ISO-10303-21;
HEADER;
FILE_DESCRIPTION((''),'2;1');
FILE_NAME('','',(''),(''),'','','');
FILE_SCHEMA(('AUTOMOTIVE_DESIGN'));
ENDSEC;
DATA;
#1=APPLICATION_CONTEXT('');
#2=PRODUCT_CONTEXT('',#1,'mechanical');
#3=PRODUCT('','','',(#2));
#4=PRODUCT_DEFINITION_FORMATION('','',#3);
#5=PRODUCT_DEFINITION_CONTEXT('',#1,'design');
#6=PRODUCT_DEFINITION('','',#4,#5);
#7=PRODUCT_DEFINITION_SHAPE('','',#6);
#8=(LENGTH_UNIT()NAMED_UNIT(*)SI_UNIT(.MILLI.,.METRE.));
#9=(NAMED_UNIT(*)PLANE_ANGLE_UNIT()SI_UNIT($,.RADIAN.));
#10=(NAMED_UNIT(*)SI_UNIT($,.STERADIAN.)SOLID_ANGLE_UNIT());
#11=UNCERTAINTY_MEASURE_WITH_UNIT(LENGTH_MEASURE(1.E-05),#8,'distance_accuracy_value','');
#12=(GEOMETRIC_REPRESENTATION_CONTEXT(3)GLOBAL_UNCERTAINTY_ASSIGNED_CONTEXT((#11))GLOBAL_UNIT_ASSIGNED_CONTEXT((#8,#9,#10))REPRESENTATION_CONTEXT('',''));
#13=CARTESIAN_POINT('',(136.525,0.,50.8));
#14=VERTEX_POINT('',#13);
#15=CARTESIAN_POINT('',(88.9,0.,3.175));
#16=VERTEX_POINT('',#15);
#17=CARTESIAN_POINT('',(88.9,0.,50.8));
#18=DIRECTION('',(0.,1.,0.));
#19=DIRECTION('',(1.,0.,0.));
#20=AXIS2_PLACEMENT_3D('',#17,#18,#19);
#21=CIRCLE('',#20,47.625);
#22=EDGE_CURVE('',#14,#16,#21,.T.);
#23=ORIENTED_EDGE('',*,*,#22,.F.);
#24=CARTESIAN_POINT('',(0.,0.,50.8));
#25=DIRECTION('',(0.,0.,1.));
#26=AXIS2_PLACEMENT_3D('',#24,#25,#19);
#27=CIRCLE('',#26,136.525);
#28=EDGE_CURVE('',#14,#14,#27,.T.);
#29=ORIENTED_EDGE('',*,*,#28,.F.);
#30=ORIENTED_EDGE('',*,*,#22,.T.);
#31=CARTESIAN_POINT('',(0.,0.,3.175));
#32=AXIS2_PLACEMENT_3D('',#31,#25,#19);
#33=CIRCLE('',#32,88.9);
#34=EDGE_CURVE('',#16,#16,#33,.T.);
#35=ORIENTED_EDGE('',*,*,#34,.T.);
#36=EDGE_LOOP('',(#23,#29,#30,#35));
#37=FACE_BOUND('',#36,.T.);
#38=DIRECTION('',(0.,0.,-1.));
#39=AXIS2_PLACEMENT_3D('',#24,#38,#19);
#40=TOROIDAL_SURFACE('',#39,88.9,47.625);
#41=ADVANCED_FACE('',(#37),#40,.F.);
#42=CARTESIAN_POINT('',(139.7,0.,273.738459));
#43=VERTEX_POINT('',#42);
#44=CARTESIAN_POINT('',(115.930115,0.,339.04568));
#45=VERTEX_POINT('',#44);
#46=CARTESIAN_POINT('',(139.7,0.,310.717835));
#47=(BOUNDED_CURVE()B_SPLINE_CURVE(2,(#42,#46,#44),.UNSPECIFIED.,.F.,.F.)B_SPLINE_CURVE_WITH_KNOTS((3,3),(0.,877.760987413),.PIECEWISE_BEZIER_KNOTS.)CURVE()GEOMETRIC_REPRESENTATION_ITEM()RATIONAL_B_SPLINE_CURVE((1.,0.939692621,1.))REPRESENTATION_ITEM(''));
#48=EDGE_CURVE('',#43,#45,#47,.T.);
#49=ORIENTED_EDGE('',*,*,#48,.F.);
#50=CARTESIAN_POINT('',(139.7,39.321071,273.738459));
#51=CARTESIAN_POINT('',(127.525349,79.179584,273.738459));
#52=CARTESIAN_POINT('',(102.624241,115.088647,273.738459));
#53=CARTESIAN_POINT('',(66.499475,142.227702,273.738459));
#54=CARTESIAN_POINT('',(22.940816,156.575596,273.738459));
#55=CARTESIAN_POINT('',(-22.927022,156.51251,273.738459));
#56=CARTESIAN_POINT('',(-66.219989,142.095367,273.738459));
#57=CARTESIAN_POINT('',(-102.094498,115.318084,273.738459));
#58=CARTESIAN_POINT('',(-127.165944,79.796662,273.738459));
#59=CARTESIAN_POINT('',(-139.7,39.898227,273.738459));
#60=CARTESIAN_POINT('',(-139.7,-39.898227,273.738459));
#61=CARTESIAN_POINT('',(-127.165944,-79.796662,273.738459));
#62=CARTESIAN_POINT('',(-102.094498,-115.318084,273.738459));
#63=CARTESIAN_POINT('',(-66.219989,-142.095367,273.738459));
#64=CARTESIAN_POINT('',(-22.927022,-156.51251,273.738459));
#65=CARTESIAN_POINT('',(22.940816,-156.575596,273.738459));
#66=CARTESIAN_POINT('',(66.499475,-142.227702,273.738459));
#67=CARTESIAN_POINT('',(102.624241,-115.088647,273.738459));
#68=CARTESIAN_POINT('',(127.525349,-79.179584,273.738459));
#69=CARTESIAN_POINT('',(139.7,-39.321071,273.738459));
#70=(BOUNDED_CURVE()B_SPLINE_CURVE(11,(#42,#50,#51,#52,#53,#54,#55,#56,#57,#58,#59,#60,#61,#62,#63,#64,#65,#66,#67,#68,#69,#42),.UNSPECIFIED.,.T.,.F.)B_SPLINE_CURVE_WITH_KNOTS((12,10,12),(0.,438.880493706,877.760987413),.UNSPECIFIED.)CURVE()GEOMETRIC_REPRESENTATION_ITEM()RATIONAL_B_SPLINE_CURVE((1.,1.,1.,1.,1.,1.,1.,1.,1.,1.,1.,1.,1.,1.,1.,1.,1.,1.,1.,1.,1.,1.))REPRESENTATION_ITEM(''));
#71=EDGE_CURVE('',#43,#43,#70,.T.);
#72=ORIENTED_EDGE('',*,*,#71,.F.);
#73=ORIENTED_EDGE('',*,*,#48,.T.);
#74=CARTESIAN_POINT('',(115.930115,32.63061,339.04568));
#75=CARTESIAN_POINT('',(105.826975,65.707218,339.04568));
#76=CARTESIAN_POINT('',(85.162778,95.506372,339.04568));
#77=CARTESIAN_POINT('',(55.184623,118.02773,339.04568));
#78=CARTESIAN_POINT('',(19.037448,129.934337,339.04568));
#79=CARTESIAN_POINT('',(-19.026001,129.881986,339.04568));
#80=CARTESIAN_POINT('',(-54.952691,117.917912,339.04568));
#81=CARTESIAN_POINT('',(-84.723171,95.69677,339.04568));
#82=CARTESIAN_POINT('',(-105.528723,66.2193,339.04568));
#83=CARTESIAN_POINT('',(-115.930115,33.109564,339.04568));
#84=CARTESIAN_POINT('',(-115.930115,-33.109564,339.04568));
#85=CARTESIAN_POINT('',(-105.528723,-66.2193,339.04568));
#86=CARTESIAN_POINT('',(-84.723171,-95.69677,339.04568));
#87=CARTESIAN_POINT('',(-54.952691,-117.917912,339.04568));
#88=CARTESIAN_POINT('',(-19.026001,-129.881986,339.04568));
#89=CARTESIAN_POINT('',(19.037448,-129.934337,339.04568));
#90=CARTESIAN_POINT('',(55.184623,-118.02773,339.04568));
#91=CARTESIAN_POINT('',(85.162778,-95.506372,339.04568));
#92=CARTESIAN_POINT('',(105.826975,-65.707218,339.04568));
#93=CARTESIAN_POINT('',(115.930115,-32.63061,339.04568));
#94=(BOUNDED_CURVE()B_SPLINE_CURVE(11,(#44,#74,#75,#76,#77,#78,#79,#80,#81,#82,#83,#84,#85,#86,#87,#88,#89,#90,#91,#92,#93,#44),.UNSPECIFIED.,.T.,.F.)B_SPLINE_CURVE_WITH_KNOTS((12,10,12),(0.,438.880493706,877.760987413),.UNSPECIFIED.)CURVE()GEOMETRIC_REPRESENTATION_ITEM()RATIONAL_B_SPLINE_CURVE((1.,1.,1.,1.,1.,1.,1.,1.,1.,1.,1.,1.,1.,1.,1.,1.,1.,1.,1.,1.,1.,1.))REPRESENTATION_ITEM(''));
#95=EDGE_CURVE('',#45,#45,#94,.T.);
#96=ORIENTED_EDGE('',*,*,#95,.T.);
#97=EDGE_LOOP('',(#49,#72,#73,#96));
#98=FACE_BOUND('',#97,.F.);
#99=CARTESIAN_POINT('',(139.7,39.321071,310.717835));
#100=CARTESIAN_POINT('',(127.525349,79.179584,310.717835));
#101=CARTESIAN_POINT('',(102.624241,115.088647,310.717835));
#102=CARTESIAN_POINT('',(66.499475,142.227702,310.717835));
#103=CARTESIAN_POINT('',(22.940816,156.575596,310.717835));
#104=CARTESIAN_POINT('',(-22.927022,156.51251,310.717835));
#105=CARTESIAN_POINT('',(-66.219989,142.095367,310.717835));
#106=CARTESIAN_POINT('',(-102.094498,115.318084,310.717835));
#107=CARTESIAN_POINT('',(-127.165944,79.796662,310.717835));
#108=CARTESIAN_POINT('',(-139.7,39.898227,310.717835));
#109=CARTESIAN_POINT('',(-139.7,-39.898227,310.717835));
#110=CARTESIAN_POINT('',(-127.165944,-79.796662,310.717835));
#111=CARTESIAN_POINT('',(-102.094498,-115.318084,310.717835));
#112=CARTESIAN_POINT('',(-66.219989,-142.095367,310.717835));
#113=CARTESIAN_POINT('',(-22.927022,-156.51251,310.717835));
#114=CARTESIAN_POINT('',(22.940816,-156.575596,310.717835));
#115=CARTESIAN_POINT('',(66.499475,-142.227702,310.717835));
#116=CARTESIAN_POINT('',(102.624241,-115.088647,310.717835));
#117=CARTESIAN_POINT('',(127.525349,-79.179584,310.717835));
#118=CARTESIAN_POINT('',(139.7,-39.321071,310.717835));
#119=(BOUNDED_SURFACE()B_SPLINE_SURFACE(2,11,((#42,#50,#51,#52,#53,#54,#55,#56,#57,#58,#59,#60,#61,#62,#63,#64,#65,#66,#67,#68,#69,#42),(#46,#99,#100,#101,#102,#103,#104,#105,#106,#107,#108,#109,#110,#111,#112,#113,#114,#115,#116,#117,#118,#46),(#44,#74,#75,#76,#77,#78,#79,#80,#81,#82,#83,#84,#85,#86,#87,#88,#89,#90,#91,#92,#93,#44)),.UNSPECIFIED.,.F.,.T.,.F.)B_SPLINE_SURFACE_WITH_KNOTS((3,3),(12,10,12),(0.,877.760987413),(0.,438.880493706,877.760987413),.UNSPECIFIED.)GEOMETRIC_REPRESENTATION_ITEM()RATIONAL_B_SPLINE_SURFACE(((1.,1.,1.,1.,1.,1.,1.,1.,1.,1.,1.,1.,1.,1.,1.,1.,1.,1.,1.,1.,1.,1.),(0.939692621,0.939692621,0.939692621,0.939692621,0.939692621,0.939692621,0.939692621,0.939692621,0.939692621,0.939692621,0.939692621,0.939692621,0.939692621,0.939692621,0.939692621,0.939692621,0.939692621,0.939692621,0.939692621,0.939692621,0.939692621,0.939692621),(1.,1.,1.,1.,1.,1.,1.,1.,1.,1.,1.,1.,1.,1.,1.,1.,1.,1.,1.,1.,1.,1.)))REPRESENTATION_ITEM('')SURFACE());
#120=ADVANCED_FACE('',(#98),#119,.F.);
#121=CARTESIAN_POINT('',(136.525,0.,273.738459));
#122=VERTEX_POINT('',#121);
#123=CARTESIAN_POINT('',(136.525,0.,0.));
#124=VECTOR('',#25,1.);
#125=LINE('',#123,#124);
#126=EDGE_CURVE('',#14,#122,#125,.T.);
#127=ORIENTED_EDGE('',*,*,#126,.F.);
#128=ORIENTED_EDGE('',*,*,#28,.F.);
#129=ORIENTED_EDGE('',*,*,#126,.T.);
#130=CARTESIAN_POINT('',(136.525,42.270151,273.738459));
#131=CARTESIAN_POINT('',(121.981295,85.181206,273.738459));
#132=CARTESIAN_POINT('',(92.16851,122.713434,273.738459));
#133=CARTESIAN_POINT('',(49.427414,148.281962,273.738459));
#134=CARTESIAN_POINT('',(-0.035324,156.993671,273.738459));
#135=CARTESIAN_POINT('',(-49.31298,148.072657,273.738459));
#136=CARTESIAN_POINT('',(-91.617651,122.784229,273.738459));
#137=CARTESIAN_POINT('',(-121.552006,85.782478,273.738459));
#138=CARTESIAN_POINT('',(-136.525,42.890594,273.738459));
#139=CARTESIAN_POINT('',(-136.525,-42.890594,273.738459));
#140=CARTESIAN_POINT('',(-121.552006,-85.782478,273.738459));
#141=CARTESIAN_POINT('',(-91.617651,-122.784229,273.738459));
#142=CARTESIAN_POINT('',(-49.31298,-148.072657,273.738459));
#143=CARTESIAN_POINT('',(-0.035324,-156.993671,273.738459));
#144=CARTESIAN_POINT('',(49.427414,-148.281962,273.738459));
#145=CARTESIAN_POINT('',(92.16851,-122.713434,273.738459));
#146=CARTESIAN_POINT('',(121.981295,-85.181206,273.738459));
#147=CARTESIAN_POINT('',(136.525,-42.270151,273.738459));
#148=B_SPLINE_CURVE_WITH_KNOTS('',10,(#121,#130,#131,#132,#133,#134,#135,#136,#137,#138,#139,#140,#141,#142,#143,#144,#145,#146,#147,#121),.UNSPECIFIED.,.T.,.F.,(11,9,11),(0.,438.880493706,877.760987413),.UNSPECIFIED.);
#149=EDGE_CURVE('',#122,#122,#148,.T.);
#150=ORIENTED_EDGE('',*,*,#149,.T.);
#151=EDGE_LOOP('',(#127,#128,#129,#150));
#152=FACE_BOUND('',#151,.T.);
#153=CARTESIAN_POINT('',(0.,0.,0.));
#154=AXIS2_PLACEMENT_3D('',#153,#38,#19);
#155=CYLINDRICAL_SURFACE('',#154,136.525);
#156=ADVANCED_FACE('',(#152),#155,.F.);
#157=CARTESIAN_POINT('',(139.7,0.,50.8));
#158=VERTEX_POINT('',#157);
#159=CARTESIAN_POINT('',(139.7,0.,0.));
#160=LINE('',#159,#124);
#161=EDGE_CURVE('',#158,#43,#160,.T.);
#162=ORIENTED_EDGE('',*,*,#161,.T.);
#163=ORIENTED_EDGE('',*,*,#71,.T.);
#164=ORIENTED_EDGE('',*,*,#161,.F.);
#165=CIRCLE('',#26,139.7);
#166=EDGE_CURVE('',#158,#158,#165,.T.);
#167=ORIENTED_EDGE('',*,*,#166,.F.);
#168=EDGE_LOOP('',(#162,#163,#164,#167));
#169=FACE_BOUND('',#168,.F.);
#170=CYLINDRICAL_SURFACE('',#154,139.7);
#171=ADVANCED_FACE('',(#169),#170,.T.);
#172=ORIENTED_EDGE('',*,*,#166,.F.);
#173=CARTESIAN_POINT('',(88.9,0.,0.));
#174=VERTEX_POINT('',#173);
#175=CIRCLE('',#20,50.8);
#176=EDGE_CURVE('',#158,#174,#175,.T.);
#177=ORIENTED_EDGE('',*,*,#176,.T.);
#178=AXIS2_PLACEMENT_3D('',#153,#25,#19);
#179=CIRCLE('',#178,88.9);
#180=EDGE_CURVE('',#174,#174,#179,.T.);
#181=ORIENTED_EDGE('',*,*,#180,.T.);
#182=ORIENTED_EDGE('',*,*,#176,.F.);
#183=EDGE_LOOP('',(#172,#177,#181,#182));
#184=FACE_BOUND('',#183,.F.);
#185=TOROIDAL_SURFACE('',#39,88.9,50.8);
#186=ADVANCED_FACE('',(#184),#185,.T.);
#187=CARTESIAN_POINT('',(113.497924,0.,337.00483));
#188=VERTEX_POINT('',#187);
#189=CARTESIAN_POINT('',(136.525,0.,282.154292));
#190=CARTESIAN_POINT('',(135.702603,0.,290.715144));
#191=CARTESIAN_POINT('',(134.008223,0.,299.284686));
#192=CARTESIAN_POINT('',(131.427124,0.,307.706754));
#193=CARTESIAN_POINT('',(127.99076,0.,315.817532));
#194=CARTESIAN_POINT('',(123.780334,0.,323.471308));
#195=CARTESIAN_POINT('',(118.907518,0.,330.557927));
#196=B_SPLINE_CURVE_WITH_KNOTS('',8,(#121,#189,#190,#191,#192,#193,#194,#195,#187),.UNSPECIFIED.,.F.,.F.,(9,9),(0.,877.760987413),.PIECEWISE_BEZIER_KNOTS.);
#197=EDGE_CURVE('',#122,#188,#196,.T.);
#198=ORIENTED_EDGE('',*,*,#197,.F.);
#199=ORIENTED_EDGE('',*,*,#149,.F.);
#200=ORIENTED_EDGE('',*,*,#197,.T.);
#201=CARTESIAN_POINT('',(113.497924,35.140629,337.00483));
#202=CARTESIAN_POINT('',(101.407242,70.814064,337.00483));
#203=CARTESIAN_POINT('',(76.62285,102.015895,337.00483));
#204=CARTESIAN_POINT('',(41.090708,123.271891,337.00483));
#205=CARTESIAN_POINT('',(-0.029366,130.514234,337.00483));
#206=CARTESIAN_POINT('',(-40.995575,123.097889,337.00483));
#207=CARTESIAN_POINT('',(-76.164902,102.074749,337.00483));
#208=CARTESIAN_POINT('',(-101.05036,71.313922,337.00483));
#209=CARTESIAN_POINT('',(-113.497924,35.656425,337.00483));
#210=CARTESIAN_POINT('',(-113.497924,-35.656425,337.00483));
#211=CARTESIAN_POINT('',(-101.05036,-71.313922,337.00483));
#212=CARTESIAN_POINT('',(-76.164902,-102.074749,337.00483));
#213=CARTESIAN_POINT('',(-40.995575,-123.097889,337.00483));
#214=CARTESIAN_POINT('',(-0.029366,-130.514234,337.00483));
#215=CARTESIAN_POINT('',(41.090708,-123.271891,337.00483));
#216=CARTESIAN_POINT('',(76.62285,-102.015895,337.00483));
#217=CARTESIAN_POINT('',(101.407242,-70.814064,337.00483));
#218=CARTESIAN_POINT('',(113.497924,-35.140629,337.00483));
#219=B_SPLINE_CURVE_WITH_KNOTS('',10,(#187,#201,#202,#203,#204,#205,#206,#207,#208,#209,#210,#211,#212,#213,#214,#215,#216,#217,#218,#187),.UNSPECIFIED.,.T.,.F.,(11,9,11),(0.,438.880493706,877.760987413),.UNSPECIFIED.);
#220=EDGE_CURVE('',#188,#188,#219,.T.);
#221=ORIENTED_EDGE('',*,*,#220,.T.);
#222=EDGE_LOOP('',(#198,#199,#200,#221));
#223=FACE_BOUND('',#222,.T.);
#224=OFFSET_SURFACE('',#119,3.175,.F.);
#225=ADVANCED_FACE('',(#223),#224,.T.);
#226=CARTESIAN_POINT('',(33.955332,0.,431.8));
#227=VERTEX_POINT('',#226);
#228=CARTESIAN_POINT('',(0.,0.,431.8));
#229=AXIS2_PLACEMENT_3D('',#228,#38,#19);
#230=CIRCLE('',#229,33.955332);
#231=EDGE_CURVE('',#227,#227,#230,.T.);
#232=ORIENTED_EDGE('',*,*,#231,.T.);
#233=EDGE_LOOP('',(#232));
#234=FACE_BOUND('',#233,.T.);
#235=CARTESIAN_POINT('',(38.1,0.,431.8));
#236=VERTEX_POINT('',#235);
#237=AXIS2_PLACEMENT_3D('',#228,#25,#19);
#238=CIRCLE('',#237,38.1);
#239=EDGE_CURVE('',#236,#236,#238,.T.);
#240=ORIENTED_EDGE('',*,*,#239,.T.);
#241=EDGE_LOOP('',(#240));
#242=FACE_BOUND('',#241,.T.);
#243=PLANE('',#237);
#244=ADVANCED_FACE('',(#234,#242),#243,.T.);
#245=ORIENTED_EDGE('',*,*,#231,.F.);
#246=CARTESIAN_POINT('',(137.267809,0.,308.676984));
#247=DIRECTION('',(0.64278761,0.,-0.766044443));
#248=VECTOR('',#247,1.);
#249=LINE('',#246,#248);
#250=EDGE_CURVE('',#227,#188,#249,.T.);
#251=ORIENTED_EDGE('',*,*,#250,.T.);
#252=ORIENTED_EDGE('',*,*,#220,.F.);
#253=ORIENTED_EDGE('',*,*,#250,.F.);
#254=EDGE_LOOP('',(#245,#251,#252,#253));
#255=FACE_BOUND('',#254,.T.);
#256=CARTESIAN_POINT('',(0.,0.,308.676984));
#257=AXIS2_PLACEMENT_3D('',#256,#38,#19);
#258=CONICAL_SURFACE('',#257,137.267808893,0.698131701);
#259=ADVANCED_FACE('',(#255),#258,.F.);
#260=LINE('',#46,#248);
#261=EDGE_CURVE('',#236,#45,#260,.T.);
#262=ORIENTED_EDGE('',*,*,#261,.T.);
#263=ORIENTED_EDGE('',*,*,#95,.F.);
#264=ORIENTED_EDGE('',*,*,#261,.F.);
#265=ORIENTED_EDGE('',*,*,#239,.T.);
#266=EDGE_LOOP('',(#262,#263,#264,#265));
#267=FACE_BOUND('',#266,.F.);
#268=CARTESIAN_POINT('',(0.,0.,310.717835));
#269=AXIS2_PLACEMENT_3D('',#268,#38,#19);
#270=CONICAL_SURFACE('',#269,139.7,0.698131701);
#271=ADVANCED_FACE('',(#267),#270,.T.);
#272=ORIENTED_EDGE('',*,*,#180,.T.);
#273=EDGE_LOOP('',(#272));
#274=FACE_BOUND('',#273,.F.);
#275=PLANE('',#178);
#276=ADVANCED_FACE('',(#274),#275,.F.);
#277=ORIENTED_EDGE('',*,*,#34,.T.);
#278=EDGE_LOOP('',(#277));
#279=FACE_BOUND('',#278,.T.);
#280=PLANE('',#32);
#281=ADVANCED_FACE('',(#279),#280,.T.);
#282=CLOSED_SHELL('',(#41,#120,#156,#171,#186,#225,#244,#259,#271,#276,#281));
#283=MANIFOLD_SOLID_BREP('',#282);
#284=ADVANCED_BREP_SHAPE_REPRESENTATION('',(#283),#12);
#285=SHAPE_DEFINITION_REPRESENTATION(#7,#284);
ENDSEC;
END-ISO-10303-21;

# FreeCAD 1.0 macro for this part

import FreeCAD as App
import Part
import Sketcher
from FreeCAD import Vector
Q = App.Units.Quantity


def edges_at(feature, points):
    """Names of the edges that pass closest to the given points."""
    edges = feature.Shape.Edges
    near = lambda p: min(range(len(edges)), key=lambda i: edges[i].distToShape(Part.Vertex(*p))[0])
    return sorted({f"Edge{near(p) + 1}" for p in points})


def faces_at(feature, points):
    """Names of the faces that lie closest to the given points."""
    faces = feature.Shape.Faces
    near = lambda p: min(range(len(faces)), key=lambda i: faces[i].distToShape(Part.Vertex(*p))[0])
    return sorted({f"Face{near(p) + 1}" for p in points})

doc = App.newDocument("Part")
params = doc.addObject("Spreadsheet::Sheet", "Params")
for row, (alias, value) in enumerate([
    ("sketch1_diameter", "11 in"),
    ("pad1_length", "17 in"),
    ("fillet_radius", "2 in"),
    ("chamfer_size", "4 in"),
    ("chamfer_size2", "121.082165 mm"),
    ("fillet2_radius", "4 in"),
    ("thickness_wall", "0.125 in"),
], start=1):
    params.set(f"A{row}", alias)
    params.set(f"B{row}", "=" + value)
    params.setAlias(f"B{row}", alias)

body = doc.addObject("PartDesign::Body", "Body")

sketch1 = body.newObject("Sketcher::SketchObject", "Sketch")
sketch1.AttachmentSupport = (doc.getObject("XY_Plane"), [""])
sketch1.MapMode = "FlatFace"
sketch1.addGeometry(Part.Circle(Vector(0, 0, 0), Vector(0, 0, 1), 140), False)
sketch1.addConstraint(Sketcher.Constraint("Coincident", 0, 3, -1, 1))
sketch1.addConstraint(Sketcher.Constraint("Diameter", 0, Q("11 in")))
sketch1.setExpression("Constraints[1]", "Params.sketch1_diameter")
pad1 = body.newObject("PartDesign::Pad", "Pad")
pad1.Profile = sketch1
pad1.setExpression("Length", "Params.pad1_length")
doc.recompute()

fillet = body.newObject("PartDesign::Fillet", "Fillet")
fillet.Base = (pad1, edges_at(pad1, [(-139.7, 0, 0)]))
fillet.setExpression("Radius", "Params.fillet_radius")
doc.recompute()

chamfer = body.newObject("PartDesign::Chamfer", "Chamfer")
chamfer.Base = (fillet, edges_at(fillet, [(-139.7, 0, 431.8)]))
chamfer.ChamferType = "Two distances"
chamfer.setExpression("Size", "Params.chamfer_size")
chamfer.setExpression("Size2", "Params.chamfer_size2")
chamfer.FlipDirection = True
doc.recompute()

fillet2 = body.newObject("PartDesign::Fillet", "Fillet001")
fillet2.Base = (chamfer, edges_at(chamfer, [(-139.7, 0, 310.718)]))
fillet2.setExpression("Radius", "Params.fillet2_radius")
doc.recompute()

thickness = body.newObject("PartDesign::Thickness", "Thickness")
thickness.Base = (fillet2, faces_at(fillet2, [(0, 0, 431.8)]))
thickness.setExpression("Value", "Params.thickness_wall")
thickness.Reversed = True
thickness.Join = "Arc"

doc.recompute()
